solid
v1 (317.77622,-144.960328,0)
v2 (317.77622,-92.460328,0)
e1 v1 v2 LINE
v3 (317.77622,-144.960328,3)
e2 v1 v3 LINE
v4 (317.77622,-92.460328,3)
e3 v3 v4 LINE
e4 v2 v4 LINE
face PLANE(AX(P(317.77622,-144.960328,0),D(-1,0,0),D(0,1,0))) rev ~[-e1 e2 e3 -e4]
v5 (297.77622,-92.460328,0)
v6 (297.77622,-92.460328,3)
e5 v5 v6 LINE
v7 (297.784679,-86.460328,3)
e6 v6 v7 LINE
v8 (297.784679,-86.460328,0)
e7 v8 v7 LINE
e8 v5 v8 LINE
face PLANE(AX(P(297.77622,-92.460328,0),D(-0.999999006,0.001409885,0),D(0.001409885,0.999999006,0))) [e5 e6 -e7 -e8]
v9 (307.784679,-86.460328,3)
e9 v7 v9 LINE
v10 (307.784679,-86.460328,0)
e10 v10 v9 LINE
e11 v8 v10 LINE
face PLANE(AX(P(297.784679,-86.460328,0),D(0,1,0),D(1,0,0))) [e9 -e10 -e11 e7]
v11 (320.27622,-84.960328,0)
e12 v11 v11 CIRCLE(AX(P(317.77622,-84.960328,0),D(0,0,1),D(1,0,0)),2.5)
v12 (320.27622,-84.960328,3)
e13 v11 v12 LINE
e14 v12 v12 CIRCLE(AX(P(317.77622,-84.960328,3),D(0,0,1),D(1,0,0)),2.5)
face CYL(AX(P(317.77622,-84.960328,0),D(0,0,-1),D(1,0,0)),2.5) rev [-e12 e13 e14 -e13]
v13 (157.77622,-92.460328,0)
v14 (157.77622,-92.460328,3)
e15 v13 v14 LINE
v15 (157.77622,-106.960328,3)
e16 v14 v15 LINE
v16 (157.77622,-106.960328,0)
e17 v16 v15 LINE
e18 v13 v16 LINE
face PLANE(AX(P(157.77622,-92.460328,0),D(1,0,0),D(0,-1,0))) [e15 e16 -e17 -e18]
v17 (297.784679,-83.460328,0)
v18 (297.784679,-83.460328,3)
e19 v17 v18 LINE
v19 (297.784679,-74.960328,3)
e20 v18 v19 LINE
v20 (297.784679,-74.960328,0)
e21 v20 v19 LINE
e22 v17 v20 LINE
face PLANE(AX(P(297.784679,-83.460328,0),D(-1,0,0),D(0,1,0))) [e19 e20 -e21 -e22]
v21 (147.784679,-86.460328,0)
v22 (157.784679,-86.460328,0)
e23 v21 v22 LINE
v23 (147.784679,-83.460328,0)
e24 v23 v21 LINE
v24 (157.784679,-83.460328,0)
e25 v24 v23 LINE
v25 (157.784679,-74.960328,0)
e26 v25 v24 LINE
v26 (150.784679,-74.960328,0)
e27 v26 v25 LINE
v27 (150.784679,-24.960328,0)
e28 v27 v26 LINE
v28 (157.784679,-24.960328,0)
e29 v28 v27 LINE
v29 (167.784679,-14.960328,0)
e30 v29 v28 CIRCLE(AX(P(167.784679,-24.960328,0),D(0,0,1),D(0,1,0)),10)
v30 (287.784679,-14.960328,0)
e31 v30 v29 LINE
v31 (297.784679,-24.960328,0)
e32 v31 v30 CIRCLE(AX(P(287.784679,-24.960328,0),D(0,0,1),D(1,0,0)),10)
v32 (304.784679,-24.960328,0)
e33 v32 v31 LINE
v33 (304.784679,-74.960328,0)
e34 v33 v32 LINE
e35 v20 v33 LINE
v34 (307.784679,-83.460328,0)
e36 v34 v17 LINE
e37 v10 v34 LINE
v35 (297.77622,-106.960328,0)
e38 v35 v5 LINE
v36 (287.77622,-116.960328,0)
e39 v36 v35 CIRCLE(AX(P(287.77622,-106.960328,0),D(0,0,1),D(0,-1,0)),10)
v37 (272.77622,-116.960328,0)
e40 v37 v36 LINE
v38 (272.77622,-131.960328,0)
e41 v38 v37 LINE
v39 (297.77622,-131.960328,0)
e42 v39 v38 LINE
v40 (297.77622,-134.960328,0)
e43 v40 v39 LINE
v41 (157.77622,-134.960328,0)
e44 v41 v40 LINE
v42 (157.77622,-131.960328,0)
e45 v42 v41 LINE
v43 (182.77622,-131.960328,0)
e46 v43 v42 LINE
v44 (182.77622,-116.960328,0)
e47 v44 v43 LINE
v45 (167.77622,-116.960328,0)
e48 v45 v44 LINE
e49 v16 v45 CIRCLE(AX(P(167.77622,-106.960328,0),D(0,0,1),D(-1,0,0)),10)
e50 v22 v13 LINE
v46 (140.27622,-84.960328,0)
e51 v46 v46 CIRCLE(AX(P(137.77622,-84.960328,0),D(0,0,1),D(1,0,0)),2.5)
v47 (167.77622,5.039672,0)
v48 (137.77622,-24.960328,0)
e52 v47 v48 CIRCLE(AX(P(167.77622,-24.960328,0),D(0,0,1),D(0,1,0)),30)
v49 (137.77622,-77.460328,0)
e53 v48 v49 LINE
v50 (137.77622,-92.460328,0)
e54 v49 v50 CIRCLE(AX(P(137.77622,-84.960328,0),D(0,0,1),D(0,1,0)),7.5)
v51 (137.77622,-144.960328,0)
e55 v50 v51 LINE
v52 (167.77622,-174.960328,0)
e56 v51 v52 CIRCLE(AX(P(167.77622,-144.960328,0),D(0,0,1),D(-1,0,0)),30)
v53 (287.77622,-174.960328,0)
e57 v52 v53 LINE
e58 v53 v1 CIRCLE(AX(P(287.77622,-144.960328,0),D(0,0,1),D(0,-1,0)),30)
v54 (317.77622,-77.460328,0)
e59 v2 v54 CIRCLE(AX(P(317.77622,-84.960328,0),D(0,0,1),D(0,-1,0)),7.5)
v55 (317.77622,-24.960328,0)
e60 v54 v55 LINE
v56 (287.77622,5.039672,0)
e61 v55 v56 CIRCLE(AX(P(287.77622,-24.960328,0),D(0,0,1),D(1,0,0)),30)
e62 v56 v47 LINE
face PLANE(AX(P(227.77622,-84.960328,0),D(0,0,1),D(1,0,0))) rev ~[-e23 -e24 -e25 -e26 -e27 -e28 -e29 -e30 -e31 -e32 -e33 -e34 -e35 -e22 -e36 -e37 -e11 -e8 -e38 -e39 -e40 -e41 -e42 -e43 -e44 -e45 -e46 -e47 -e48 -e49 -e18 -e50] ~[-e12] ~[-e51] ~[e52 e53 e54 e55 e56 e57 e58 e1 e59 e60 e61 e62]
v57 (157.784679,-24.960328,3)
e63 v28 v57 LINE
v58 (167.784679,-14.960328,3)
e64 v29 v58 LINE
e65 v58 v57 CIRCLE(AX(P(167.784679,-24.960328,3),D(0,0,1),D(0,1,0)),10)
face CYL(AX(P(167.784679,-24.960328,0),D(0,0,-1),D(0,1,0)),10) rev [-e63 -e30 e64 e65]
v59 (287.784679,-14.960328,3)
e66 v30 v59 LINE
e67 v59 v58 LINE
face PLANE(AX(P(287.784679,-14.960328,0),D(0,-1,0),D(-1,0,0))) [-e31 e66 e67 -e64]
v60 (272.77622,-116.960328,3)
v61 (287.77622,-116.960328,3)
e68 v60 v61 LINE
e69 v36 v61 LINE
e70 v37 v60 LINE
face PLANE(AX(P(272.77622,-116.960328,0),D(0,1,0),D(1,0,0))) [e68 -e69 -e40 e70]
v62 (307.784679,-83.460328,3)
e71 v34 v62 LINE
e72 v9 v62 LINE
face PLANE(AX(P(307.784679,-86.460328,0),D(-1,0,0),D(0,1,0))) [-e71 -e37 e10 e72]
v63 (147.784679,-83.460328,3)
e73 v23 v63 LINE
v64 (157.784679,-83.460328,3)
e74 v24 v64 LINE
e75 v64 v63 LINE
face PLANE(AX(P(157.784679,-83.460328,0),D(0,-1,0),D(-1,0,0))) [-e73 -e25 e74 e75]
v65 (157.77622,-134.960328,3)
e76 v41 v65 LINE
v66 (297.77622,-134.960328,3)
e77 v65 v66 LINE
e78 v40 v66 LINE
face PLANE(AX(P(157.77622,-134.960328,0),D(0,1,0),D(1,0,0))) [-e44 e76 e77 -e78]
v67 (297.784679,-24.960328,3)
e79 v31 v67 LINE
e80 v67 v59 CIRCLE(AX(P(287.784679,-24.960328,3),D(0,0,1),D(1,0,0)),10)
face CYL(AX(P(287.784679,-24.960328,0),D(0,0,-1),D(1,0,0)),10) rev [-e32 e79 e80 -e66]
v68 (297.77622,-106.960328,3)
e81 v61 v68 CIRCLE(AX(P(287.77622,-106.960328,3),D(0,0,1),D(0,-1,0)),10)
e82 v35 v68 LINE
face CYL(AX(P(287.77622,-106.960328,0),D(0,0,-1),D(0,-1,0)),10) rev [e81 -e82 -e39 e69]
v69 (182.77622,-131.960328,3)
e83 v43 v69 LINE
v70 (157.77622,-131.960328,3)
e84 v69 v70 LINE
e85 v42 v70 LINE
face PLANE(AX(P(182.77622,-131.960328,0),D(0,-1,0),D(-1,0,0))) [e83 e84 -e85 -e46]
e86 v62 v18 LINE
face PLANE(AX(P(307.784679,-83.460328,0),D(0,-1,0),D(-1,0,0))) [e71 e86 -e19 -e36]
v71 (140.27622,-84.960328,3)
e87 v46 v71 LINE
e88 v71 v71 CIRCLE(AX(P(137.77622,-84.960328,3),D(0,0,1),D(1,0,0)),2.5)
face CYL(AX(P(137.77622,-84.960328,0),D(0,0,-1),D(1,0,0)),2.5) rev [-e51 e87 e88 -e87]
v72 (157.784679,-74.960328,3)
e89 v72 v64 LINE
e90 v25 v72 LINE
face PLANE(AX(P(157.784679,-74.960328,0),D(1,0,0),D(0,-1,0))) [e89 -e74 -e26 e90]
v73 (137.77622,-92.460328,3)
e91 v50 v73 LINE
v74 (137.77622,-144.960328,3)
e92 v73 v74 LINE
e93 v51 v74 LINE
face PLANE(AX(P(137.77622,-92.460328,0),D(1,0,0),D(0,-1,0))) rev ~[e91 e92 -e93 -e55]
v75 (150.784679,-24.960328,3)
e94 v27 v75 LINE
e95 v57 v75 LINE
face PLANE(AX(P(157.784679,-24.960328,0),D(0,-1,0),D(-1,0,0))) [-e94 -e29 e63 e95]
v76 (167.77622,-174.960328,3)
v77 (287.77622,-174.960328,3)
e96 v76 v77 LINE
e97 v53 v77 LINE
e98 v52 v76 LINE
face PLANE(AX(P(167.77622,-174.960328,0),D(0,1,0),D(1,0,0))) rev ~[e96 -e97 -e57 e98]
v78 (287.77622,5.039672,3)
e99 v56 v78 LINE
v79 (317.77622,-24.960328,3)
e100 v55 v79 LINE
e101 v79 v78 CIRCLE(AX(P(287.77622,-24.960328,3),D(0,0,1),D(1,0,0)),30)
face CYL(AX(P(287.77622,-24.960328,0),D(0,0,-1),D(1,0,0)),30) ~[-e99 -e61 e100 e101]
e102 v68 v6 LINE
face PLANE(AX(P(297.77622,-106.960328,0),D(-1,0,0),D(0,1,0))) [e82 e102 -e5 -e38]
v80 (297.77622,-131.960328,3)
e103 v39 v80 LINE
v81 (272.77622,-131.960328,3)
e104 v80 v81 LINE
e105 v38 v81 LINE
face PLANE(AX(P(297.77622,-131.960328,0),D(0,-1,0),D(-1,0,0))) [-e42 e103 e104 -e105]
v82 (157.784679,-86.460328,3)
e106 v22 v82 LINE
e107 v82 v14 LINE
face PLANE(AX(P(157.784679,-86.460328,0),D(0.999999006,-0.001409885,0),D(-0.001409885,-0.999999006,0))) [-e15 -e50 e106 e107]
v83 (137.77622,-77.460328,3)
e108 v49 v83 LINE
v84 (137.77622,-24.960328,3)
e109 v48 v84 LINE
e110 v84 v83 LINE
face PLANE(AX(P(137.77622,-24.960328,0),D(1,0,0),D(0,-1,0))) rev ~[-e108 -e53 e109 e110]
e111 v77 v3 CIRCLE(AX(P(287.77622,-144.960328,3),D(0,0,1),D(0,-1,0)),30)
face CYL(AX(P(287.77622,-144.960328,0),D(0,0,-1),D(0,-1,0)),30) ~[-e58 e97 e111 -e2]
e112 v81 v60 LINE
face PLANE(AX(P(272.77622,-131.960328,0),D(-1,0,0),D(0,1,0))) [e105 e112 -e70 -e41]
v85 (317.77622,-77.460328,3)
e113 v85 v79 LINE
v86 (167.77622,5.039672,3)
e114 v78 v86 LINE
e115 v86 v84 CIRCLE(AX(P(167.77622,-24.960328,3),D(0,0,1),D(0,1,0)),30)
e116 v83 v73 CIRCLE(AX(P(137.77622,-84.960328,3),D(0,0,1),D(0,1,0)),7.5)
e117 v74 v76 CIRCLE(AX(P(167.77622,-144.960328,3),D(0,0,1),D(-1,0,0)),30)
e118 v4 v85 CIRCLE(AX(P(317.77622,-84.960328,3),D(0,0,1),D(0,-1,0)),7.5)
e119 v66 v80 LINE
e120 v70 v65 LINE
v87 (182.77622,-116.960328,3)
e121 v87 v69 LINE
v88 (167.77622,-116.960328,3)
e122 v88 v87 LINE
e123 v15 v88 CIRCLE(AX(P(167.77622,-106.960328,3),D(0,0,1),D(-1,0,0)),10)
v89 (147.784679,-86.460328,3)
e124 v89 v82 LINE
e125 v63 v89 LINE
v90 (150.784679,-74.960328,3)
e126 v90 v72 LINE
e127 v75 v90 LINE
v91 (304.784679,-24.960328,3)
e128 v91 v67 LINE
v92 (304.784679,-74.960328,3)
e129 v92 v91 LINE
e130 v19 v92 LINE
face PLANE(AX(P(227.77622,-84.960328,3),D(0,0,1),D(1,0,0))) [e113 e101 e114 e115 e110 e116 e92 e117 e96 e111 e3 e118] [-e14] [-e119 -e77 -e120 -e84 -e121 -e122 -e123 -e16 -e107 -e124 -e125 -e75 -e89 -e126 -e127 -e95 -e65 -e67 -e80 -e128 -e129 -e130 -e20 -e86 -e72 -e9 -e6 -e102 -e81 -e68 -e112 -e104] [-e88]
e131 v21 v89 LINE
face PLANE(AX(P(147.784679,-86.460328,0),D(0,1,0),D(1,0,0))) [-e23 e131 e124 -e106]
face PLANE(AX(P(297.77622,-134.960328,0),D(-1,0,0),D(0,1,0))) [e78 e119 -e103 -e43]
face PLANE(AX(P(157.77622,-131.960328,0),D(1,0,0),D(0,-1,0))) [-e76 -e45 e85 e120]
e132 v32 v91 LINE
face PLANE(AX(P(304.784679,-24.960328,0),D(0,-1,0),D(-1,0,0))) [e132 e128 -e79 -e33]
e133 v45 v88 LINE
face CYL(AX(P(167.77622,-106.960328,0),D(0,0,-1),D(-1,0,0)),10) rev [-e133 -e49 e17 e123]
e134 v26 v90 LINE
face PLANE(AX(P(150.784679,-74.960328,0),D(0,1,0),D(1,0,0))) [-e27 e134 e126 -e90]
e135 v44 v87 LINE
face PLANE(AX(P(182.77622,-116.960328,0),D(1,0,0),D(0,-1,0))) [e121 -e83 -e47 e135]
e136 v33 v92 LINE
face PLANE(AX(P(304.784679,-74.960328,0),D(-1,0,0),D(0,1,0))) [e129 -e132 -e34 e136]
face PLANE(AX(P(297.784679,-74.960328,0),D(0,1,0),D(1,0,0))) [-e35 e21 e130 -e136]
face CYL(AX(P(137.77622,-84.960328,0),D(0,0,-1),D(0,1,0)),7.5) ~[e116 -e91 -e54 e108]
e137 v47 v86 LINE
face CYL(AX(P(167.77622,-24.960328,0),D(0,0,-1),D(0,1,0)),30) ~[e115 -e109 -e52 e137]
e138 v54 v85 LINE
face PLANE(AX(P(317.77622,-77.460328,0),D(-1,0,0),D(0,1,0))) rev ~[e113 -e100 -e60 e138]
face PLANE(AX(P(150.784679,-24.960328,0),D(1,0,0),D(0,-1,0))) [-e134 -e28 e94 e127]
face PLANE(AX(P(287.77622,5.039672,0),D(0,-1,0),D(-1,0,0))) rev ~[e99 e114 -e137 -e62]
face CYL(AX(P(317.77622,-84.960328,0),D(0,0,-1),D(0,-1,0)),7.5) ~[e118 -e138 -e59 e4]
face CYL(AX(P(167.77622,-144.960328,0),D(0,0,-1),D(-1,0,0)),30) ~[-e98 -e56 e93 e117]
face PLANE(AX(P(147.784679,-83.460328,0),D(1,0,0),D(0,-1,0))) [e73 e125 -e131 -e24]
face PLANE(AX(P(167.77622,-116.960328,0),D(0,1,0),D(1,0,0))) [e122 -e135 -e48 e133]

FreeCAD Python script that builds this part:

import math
import FreeCAD as App
import Part
import Sketcher
Q = App.Units.Quantity

doc = App.newDocument("Part")
body = doc.addObject("PartDesign::Body", "Body")

# Sketch on XY plane
sketch1 = body.newObject("Sketcher::SketchObject", "Sketch")
sketch1.AttachmentSupport = (doc.getObject("XY_Plane"), [""])
sketch1.MapMode = "FlatFace"
sketch1.addGeometry([
    Part.LineSegment(App.Vector(167.8, -175, 0), App.Vector(287.8, -175, 0)),  # 0
    Part.ArcOfCircle(Part.Circle(App.Vector(287.8, -145, 0), App.Vector(0, 0, 1), 30), math.radians(-90), math.radians(0)),  # 1
    Part.LineSegment(App.Vector(317.8, -145, 0), App.Vector(317.8, -92.5, 0)),  # 2
    Part.ArcOfCircle(Part.Circle(App.Vector(317.8, -85, 0), App.Vector(0, 0, 1), 7.5), math.radians(-90), math.radians(90)),  # 3
    Part.LineSegment(App.Vector(317.8, -77.5, 0), App.Vector(317.8, -25, 0)),  # 4
    Part.ArcOfCircle(Part.Circle(App.Vector(287.8, -25, 0), App.Vector(0, 0, 1), 30), math.radians(0), math.radians(90)),  # 5
    Part.LineSegment(App.Vector(287.8, 5, 0), App.Vector(167.8, 5, 0)),  # 6
    Part.ArcOfCircle(Part.Circle(App.Vector(167.8, -25, 0), App.Vector(0, 0, 1), 30), math.radians(90), math.radians(180)),  # 7
    Part.LineSegment(App.Vector(137.8, -25, 0), App.Vector(137.8, -77.5, 0)),  # 8
    Part.ArcOfCircle(Part.Circle(App.Vector(137.8, -85, 0), App.Vector(0, 0, 1), 7.5), math.radians(90), math.radians(270)),  # 9
    Part.LineSegment(App.Vector(137.8, -92.5, 0), App.Vector(137.8, -145, 0)),  # 10
    Part.ArcOfCircle(Part.Circle(App.Vector(167.8, -145, 0), App.Vector(0, 0, 1), 30), math.radians(180), math.radians(270)),  # 11
    Part.Circle(App.Vector(137.8, -85, 0), App.Vector(0, 0, 1), 2.5),  # 12
    Part.Circle(App.Vector(317.8, -85, 0), App.Vector(0, 0, 1), 2.5),  # 13
    Part.ArcOfCircle(Part.Circle(App.Vector(167.8, -25, 0), App.Vector(0, 0, 1), 10), math.radians(90), math.radians(180)),  # 14
    Part.LineSegment(App.Vector(167.8, -15, 0), App.Vector(287.8, -15, 0)),  # 15
    Part.ArcOfCircle(Part.Circle(App.Vector(287.8, -25, 0), App.Vector(0, 0, 1), 10), math.radians(0), math.radians(90)),  # 16
    Part.LineSegment(App.Vector(297.8, -25, 0), App.Vector(304.8, -25, 0)),  # 17
    Part.LineSegment(App.Vector(304.8, -25, 0), App.Vector(304.8, -75, 0)),  # 18
    Part.LineSegment(App.Vector(304.8, -75, 0), App.Vector(297.8, -75, 0)),  # 19
    Part.LineSegment(App.Vector(297.8, -75, 0), App.Vector(297.8, -83.5, 0)),  # 20
    Part.LineSegment(App.Vector(297.8, -83.5, 0), App.Vector(307.8, -83.5, 0)),  # 21
    Part.LineSegment(App.Vector(307.8, -83.5, 0), App.Vector(307.8, -86.5, 0)),  # 22
    Part.LineSegment(App.Vector(307.8, -86.5, 0), App.Vector(297.8, -86.5, 0)),  # 23
    Part.LineSegment(App.Vector(297.8, -86.5, 0), App.Vector(297.8, -92.5, 0)),  # 24
    Part.LineSegment(App.Vector(297.8, -92.5, 0), App.Vector(297.8, -107, 0)),  # 25
    Part.ArcOfCircle(Part.Circle(App.Vector(287.8, -107, 0), App.Vector(0, 0, 1), 10), math.radians(-90), math.radians(0)),  # 26
    Part.LineSegment(App.Vector(287.8, -117, 0), App.Vector(272.8, -117, 0)),  # 27
    Part.LineSegment(App.Vector(272.8, -117, 0), App.Vector(272.8, -132, 0)),  # 28
    Part.LineSegment(App.Vector(272.8, -132, 0), App.Vector(297.8, -132, 0)),  # 29
    Part.LineSegment(App.Vector(297.8, -132, 0), App.Vector(297.8, -135, 0)),  # 30
    Part.LineSegment(App.Vector(297.8, -135, 0), App.Vector(157.8, -135, 0)),  # 31
    Part.LineSegment(App.Vector(157.8, -135, 0), App.Vector(157.8, -132, 0)),  # 32
    Part.LineSegment(App.Vector(157.8, -132, 0), App.Vector(182.8, -132, 0)),  # 33
    Part.LineSegment(App.Vector(182.8, -132, 0), App.Vector(182.8, -117, 0)),  # 34
    Part.LineSegment(App.Vector(182.8, -117, 0), App.Vector(167.8, -117, 0)),  # 35
    Part.ArcOfCircle(Part.Circle(App.Vector(167.8, -107, 0), App.Vector(0, 0, 1), 10), math.radians(180), math.radians(270)),  # 36
    Part.LineSegment(App.Vector(157.8, -107, 0), App.Vector(157.8, -92.5, 0)),  # 37
    Part.LineSegment(App.Vector(157.8, -92.5, 0), App.Vector(157.8, -86.5, 0)),  # 38
    Part.LineSegment(App.Vector(157.8, -86.5, 0), App.Vector(147.8, -86.5, 0)),  # 39
    Part.LineSegment(App.Vector(147.8, -86.5, 0), App.Vector(147.8, -83.5, 0)),  # 40
    Part.LineSegment(App.Vector(147.8, -83.5, 0), App.Vector(157.8, -83.5, 0)),  # 41
    Part.LineSegment(App.Vector(157.8, -83.5, 0), App.Vector(157.8, -75, 0)),  # 42
    Part.LineSegment(App.Vector(157.8, -75, 0), App.Vector(150.8, -75, 0)),  # 43
    Part.LineSegment(App.Vector(150.8, -75, 0), App.Vector(150.8, -25, 0)),  # 44
    Part.LineSegment(App.Vector(150.8, -25, 0), App.Vector(157.8, -25, 0)),  # 45
], False)
sketch1.addConstraint([
    Sketcher.Constraint("Tangent", 0, 2, 1, 1),
    Sketcher.Constraint("Tangent", 1, 2, 2, 1),
    Sketcher.Constraint("Coincident", 2, 2, 3, 1),
    Sketcher.Constraint("Coincident", 3, 2, 4, 1),
    Sketcher.Constraint("Tangent", 4, 2, 5, 1),
    Sketcher.Constraint("Tangent", 5, 2, 6, 1),
    Sketcher.Constraint("Tangent", 6, 2, 7, 1),
    Sketcher.Constraint("Tangent", 7, 2, 8, 1),
    Sketcher.Constraint("Coincident", 8, 2, 9, 1),
    Sketcher.Constraint("Coincident", 9, 2, 10, 1),
    Sketcher.Constraint("Tangent", 10, 2, 11, 1),
    Sketcher.Constraint("Tangent", 11, 2, 0, 1),
    Sketcher.Constraint("Tangent", 14, 1, 15, 1),
    Sketcher.Constraint("Tangent", 15, 2, 16, 2),
    Sketcher.Constraint("Coincident", 16, 1, 17, 1),
    Sketcher.Constraint("Coincident", 17, 2, 18, 1),
    Sketcher.Constraint("Coincident", 18, 2, 19, 1),
    Sketcher.Constraint("Coincident", 19, 2, 20, 1),
    Sketcher.Constraint("Coincident", 20, 2, 21, 1),
    Sketcher.Constraint("Coincident", 21, 2, 22, 1),
    Sketcher.Constraint("Coincident", 22, 2, 23, 1),
    Sketcher.Constraint("Coincident", 23, 2, 24, 1),
    Sketcher.Constraint("Coincident", 24, 2, 25, 1),
    Sketcher.Constraint("Tangent", 25, 2, 26, 2),
    Sketcher.Constraint("Tangent", 26, 1, 27, 1),
    Sketcher.Constraint("Coincident", 27, 2, 28, 1),
    Sketcher.Constraint("Coincident", 28, 2, 29, 1),
    Sketcher.Constraint("Coincident", 29, 2, 30, 1),
    Sketcher.Constraint("Coincident", 30, 2, 31, 1),
    Sketcher.Constraint("Coincident", 31, 2, 32, 1),
    Sketcher.Constraint("Coincident", 32, 2, 33, 1),
    Sketcher.Constraint("Coincident", 33, 2, 34, 1),
    Sketcher.Constraint("Coincident", 34, 2, 35, 1),
    Sketcher.Constraint("Tangent", 35, 2, 36, 2),
    Sketcher.Constraint("Tangent", 36, 1, 37, 1),
    Sketcher.Constraint("Coincident", 37, 2, 38, 1),
    Sketcher.Constraint("Coincident", 38, 2, 39, 1),
    Sketcher.Constraint("Coincident", 39, 2, 40, 1),
    Sketcher.Constraint("Coincident", 40, 2, 41, 1),
    Sketcher.Constraint("Coincident", 41, 2, 42, 1),
    Sketcher.Constraint("Coincident", 42, 2, 43, 1),
    Sketcher.Constraint("Coincident", 43, 2, 44, 1),
    Sketcher.Constraint("Coincident", 44, 2, 45, 1),
    Sketcher.Constraint("Coincident", 45, 2, 14, 2),
    Sketcher.Constraint("Horizontal", 0),
    Sketcher.Constraint("Vertical", 2),
    Sketcher.Constraint("Vertical", 4),
    Sketcher.Constraint("Horizontal", 6),
    Sketcher.Constraint("Vertical", 8),
    Sketcher.Constraint("Vertical", 10),
    Sketcher.Constraint("Horizontal", 15),
    Sketcher.Constraint("Horizontal", 17),
    Sketcher.Constraint("Vertical", 18),
    Sketcher.Constraint("Horizontal", 19),
    Sketcher.Constraint("Vertical", 20),
    Sketcher.Constraint("Horizontal", 21),
    Sketcher.Constraint("Vertical", 22),
    Sketcher.Constraint("Horizontal", 23),
    Sketcher.Constraint("Vertical", 25),
    Sketcher.Constraint("Horizontal", 27),
    Sketcher.Constraint("Vertical", 28),
    Sketcher.Constraint("Horizontal", 29),
    Sketcher.Constraint("Vertical", 30),
    Sketcher.Constraint("Horizontal", 31),
    Sketcher.Constraint("Vertical", 32),
    Sketcher.Constraint("Horizontal", 33),
    Sketcher.Constraint("Vertical", 34),
    Sketcher.Constraint("Horizontal", 35),
    Sketcher.Constraint("Vertical", 37),
    Sketcher.Constraint("Horizontal", 39),
    Sketcher.Constraint("Vertical", 40),
    Sketcher.Constraint("Horizontal", 41),
    Sketcher.Constraint("Vertical", 42),
    Sketcher.Constraint("Horizontal", 43),
    Sketcher.Constraint("Vertical", 44),
    Sketcher.Constraint("Horizontal", 45),
    Sketcher.Constraint("Coincident", 12, 3, 9, 3),
    Sketcher.Constraint("Coincident", 13, 3, 3, 3),
    Sketcher.Constraint("Equal", 1, 5),
    Sketcher.Constraint("Equal", 5, 7),
    Sketcher.Constraint("Equal", 3, 9),
    Sketcher.Constraint("Equal", 7, 11),
    Sketcher.Constraint("Equal", 12, 13),
    Sketcher.Constraint("Equal", 14, 16),
    Sketcher.Constraint("Equal", 16, 26),
    Sketcher.Constraint("Equal", 26, 36),
    Sketcher.Constraint("Parallel", 24, 38),
    Sketcher.Constraint("Horizontal", 3, 3, 9, 3),
    Sketcher.Constraint("Horizontal", 7, 3, 14, 3),
    Sketcher.Constraint("Horizontal", 26, 3, 36, 3),
    Sketcher.Constraint("Horizontal", 7, 2, 16, 1),
    Sketcher.Constraint("Horizontal", 9, 2, 24, 2),
    Sketcher.Constraint("Horizontal", 29, 2, 32, 2),
    Sketcher.Constraint("Horizontal", 24, 2, 37, 2),
    Sketcher.Constraint("Horizontal", 23, 2, 38, 2),
    Sketcher.Constraint("Horizontal", 21, 2, 40, 2),
    Sketcher.Constraint("Horizontal", 19, 2, 42, 2),
    Sketcher.Constraint("Horizontal", 17, 2, 44, 2),
    Sketcher.Constraint("Vertical", 1, 3, 5, 3),
    Sketcher.Constraint("Vertical", 7, 3, 11, 3),
    Sketcher.Constraint("Vertical", 5, 3, 26, 3),
    Sketcher.Constraint("Vertical", 11, 3, 36, 3),
    Sketcher.Constraint("Vertical", 13, 3, 1, 2),
    Sketcher.Constraint("Vertical", 12, 3, 7, 2),
    Sketcher.Constraint("Vertical", 16, 1, 19, 2),
    Sketcher.Constraint("Vertical", 20, 2, 23, 2),
    Sketcher.Constraint("Vertical", 25, 2, 29, 2),
    Sketcher.Constraint("Vertical", 32, 2, 36, 1),
    Sketcher.Constraint("Vertical", 38, 2, 41, 2),
    Sketcher.Constraint("Vertical", 42, 2, 45, 2),
    Sketcher.Constraint("Equal", 29, 33),
    Sketcher.Constraint("Equal", 23, 39),
    Sketcher.Constraint("Equal", 19, 43),
    Sketcher.Constraint("Equal", 2, 4),
    Sketcher.Constraint("Equal", 35, 28),
    Sketcher.Constraint("Equal", 22, 30),
    Sketcher.Constraint("Diameter", 12, Q("5 mm")),
    Sketcher.Constraint("Radius", 1, Q("30 mm")),
    Sketcher.Constraint("Radius", 14, Q("10 mm")),
    Sketcher.Constraint("Radius", 3, Q("7.5 mm")),
    Sketcher.Constraint("DistanceX", 0, 1, 0, 2, Q("120 mm")),
    Sketcher.Constraint("DistanceX", 17, 1, 17, 2, Q("7 mm")),
    Sketcher.Constraint("DistanceX", 21, 1, 21, 2, Q("10 mm")),
    Sketcher.Constraint("DistanceX", 27, 2, 27, 1, Q("15 mm")),
    Sketcher.Constraint("DistanceY", 18, 2, 18, 1, Q("50 mm")),
    Sketcher.Constraint("DistanceY", 22, 2, 22, 1, Q("3 mm")),
    Sketcher.Constraint("DistanceY", 2, 1, 2, 2, Q("52.5 mm")),
    Sketcher.Constraint("DistanceY", 20, 2, 20, 1, Q("8.5 mm")),
    Sketcher.Constraint("DistanceY", 25, 2, 25, 1, Q("14.5 mm")),
    Sketcher.Constraint("DistanceX", -1, 1, 1, 3, Q("287.77622 mm")),
    Sketcher.Constraint("DistanceX", -1, 1, 14, 3, Q("167.784679 mm")),
    Sketcher.Constraint("DistanceY", 1, 3, -1, 1, Q("144.960328 mm")),
])
pad1 = body.newObject("PartDesign::Pad", "Pad")
pad1.Profile = sketch1
pad1.Length = 3

doc.recompute()
